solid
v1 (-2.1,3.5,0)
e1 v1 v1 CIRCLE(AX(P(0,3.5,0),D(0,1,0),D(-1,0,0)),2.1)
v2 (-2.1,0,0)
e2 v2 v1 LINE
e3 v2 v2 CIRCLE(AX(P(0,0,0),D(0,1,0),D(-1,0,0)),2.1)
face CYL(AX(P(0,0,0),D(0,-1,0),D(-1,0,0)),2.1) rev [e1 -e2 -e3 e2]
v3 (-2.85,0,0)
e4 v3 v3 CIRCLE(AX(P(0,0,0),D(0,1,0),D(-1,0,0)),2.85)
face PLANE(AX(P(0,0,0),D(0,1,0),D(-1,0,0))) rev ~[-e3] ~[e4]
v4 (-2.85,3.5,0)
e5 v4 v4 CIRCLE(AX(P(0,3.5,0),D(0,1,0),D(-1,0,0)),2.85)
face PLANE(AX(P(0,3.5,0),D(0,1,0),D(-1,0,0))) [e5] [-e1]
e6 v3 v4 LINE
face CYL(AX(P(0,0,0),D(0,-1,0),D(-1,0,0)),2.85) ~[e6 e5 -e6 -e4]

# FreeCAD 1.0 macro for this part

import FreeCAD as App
import Part
import Sketcher
Q = App.Units.Quantity

doc = App.newDocument("Part")
body = doc.addObject("PartDesign::Body", "Body")

# Sketch on XZ plane
sketch1 = doc.addObject("Sketcher::SketchObject", "Sketch")
body.addObject(sketch1)
sketch1.AttachmentSupport = (doc.XZ_Plane, [""])
sketch1.MapMode = "FlatFace"
sketch1.addGeometry(Part.Circle(App.Vector(0, 0, 0), App.Vector(0, 0, 1), 2.9), False)
sketch1.addGeometry(Part.Circle(App.Vector(0, 0, 0), App.Vector(0, 0, 1), 2.1), False)
sketch1.addConstraint(Sketcher.Constraint("Coincident", 0, 3, -1, 1))
sketch1.addConstraint(Sketcher.Constraint("Coincident", 1, 3, -1, 1))
sketch1.addConstraint(Sketcher.Constraint("Diameter", 0, Q("5.7 mm")))
sketch1.addConstraint(Sketcher.Constraint("Diameter", 1, Q("4.2 mm")))
pad1 = doc.addObject("PartDesign::Pad", "Pad")
body.addObject(pad1)
pad1.Profile = sketch1
pad1.Length = 3.5
pad1.Reversed = True

doc.recompute()
